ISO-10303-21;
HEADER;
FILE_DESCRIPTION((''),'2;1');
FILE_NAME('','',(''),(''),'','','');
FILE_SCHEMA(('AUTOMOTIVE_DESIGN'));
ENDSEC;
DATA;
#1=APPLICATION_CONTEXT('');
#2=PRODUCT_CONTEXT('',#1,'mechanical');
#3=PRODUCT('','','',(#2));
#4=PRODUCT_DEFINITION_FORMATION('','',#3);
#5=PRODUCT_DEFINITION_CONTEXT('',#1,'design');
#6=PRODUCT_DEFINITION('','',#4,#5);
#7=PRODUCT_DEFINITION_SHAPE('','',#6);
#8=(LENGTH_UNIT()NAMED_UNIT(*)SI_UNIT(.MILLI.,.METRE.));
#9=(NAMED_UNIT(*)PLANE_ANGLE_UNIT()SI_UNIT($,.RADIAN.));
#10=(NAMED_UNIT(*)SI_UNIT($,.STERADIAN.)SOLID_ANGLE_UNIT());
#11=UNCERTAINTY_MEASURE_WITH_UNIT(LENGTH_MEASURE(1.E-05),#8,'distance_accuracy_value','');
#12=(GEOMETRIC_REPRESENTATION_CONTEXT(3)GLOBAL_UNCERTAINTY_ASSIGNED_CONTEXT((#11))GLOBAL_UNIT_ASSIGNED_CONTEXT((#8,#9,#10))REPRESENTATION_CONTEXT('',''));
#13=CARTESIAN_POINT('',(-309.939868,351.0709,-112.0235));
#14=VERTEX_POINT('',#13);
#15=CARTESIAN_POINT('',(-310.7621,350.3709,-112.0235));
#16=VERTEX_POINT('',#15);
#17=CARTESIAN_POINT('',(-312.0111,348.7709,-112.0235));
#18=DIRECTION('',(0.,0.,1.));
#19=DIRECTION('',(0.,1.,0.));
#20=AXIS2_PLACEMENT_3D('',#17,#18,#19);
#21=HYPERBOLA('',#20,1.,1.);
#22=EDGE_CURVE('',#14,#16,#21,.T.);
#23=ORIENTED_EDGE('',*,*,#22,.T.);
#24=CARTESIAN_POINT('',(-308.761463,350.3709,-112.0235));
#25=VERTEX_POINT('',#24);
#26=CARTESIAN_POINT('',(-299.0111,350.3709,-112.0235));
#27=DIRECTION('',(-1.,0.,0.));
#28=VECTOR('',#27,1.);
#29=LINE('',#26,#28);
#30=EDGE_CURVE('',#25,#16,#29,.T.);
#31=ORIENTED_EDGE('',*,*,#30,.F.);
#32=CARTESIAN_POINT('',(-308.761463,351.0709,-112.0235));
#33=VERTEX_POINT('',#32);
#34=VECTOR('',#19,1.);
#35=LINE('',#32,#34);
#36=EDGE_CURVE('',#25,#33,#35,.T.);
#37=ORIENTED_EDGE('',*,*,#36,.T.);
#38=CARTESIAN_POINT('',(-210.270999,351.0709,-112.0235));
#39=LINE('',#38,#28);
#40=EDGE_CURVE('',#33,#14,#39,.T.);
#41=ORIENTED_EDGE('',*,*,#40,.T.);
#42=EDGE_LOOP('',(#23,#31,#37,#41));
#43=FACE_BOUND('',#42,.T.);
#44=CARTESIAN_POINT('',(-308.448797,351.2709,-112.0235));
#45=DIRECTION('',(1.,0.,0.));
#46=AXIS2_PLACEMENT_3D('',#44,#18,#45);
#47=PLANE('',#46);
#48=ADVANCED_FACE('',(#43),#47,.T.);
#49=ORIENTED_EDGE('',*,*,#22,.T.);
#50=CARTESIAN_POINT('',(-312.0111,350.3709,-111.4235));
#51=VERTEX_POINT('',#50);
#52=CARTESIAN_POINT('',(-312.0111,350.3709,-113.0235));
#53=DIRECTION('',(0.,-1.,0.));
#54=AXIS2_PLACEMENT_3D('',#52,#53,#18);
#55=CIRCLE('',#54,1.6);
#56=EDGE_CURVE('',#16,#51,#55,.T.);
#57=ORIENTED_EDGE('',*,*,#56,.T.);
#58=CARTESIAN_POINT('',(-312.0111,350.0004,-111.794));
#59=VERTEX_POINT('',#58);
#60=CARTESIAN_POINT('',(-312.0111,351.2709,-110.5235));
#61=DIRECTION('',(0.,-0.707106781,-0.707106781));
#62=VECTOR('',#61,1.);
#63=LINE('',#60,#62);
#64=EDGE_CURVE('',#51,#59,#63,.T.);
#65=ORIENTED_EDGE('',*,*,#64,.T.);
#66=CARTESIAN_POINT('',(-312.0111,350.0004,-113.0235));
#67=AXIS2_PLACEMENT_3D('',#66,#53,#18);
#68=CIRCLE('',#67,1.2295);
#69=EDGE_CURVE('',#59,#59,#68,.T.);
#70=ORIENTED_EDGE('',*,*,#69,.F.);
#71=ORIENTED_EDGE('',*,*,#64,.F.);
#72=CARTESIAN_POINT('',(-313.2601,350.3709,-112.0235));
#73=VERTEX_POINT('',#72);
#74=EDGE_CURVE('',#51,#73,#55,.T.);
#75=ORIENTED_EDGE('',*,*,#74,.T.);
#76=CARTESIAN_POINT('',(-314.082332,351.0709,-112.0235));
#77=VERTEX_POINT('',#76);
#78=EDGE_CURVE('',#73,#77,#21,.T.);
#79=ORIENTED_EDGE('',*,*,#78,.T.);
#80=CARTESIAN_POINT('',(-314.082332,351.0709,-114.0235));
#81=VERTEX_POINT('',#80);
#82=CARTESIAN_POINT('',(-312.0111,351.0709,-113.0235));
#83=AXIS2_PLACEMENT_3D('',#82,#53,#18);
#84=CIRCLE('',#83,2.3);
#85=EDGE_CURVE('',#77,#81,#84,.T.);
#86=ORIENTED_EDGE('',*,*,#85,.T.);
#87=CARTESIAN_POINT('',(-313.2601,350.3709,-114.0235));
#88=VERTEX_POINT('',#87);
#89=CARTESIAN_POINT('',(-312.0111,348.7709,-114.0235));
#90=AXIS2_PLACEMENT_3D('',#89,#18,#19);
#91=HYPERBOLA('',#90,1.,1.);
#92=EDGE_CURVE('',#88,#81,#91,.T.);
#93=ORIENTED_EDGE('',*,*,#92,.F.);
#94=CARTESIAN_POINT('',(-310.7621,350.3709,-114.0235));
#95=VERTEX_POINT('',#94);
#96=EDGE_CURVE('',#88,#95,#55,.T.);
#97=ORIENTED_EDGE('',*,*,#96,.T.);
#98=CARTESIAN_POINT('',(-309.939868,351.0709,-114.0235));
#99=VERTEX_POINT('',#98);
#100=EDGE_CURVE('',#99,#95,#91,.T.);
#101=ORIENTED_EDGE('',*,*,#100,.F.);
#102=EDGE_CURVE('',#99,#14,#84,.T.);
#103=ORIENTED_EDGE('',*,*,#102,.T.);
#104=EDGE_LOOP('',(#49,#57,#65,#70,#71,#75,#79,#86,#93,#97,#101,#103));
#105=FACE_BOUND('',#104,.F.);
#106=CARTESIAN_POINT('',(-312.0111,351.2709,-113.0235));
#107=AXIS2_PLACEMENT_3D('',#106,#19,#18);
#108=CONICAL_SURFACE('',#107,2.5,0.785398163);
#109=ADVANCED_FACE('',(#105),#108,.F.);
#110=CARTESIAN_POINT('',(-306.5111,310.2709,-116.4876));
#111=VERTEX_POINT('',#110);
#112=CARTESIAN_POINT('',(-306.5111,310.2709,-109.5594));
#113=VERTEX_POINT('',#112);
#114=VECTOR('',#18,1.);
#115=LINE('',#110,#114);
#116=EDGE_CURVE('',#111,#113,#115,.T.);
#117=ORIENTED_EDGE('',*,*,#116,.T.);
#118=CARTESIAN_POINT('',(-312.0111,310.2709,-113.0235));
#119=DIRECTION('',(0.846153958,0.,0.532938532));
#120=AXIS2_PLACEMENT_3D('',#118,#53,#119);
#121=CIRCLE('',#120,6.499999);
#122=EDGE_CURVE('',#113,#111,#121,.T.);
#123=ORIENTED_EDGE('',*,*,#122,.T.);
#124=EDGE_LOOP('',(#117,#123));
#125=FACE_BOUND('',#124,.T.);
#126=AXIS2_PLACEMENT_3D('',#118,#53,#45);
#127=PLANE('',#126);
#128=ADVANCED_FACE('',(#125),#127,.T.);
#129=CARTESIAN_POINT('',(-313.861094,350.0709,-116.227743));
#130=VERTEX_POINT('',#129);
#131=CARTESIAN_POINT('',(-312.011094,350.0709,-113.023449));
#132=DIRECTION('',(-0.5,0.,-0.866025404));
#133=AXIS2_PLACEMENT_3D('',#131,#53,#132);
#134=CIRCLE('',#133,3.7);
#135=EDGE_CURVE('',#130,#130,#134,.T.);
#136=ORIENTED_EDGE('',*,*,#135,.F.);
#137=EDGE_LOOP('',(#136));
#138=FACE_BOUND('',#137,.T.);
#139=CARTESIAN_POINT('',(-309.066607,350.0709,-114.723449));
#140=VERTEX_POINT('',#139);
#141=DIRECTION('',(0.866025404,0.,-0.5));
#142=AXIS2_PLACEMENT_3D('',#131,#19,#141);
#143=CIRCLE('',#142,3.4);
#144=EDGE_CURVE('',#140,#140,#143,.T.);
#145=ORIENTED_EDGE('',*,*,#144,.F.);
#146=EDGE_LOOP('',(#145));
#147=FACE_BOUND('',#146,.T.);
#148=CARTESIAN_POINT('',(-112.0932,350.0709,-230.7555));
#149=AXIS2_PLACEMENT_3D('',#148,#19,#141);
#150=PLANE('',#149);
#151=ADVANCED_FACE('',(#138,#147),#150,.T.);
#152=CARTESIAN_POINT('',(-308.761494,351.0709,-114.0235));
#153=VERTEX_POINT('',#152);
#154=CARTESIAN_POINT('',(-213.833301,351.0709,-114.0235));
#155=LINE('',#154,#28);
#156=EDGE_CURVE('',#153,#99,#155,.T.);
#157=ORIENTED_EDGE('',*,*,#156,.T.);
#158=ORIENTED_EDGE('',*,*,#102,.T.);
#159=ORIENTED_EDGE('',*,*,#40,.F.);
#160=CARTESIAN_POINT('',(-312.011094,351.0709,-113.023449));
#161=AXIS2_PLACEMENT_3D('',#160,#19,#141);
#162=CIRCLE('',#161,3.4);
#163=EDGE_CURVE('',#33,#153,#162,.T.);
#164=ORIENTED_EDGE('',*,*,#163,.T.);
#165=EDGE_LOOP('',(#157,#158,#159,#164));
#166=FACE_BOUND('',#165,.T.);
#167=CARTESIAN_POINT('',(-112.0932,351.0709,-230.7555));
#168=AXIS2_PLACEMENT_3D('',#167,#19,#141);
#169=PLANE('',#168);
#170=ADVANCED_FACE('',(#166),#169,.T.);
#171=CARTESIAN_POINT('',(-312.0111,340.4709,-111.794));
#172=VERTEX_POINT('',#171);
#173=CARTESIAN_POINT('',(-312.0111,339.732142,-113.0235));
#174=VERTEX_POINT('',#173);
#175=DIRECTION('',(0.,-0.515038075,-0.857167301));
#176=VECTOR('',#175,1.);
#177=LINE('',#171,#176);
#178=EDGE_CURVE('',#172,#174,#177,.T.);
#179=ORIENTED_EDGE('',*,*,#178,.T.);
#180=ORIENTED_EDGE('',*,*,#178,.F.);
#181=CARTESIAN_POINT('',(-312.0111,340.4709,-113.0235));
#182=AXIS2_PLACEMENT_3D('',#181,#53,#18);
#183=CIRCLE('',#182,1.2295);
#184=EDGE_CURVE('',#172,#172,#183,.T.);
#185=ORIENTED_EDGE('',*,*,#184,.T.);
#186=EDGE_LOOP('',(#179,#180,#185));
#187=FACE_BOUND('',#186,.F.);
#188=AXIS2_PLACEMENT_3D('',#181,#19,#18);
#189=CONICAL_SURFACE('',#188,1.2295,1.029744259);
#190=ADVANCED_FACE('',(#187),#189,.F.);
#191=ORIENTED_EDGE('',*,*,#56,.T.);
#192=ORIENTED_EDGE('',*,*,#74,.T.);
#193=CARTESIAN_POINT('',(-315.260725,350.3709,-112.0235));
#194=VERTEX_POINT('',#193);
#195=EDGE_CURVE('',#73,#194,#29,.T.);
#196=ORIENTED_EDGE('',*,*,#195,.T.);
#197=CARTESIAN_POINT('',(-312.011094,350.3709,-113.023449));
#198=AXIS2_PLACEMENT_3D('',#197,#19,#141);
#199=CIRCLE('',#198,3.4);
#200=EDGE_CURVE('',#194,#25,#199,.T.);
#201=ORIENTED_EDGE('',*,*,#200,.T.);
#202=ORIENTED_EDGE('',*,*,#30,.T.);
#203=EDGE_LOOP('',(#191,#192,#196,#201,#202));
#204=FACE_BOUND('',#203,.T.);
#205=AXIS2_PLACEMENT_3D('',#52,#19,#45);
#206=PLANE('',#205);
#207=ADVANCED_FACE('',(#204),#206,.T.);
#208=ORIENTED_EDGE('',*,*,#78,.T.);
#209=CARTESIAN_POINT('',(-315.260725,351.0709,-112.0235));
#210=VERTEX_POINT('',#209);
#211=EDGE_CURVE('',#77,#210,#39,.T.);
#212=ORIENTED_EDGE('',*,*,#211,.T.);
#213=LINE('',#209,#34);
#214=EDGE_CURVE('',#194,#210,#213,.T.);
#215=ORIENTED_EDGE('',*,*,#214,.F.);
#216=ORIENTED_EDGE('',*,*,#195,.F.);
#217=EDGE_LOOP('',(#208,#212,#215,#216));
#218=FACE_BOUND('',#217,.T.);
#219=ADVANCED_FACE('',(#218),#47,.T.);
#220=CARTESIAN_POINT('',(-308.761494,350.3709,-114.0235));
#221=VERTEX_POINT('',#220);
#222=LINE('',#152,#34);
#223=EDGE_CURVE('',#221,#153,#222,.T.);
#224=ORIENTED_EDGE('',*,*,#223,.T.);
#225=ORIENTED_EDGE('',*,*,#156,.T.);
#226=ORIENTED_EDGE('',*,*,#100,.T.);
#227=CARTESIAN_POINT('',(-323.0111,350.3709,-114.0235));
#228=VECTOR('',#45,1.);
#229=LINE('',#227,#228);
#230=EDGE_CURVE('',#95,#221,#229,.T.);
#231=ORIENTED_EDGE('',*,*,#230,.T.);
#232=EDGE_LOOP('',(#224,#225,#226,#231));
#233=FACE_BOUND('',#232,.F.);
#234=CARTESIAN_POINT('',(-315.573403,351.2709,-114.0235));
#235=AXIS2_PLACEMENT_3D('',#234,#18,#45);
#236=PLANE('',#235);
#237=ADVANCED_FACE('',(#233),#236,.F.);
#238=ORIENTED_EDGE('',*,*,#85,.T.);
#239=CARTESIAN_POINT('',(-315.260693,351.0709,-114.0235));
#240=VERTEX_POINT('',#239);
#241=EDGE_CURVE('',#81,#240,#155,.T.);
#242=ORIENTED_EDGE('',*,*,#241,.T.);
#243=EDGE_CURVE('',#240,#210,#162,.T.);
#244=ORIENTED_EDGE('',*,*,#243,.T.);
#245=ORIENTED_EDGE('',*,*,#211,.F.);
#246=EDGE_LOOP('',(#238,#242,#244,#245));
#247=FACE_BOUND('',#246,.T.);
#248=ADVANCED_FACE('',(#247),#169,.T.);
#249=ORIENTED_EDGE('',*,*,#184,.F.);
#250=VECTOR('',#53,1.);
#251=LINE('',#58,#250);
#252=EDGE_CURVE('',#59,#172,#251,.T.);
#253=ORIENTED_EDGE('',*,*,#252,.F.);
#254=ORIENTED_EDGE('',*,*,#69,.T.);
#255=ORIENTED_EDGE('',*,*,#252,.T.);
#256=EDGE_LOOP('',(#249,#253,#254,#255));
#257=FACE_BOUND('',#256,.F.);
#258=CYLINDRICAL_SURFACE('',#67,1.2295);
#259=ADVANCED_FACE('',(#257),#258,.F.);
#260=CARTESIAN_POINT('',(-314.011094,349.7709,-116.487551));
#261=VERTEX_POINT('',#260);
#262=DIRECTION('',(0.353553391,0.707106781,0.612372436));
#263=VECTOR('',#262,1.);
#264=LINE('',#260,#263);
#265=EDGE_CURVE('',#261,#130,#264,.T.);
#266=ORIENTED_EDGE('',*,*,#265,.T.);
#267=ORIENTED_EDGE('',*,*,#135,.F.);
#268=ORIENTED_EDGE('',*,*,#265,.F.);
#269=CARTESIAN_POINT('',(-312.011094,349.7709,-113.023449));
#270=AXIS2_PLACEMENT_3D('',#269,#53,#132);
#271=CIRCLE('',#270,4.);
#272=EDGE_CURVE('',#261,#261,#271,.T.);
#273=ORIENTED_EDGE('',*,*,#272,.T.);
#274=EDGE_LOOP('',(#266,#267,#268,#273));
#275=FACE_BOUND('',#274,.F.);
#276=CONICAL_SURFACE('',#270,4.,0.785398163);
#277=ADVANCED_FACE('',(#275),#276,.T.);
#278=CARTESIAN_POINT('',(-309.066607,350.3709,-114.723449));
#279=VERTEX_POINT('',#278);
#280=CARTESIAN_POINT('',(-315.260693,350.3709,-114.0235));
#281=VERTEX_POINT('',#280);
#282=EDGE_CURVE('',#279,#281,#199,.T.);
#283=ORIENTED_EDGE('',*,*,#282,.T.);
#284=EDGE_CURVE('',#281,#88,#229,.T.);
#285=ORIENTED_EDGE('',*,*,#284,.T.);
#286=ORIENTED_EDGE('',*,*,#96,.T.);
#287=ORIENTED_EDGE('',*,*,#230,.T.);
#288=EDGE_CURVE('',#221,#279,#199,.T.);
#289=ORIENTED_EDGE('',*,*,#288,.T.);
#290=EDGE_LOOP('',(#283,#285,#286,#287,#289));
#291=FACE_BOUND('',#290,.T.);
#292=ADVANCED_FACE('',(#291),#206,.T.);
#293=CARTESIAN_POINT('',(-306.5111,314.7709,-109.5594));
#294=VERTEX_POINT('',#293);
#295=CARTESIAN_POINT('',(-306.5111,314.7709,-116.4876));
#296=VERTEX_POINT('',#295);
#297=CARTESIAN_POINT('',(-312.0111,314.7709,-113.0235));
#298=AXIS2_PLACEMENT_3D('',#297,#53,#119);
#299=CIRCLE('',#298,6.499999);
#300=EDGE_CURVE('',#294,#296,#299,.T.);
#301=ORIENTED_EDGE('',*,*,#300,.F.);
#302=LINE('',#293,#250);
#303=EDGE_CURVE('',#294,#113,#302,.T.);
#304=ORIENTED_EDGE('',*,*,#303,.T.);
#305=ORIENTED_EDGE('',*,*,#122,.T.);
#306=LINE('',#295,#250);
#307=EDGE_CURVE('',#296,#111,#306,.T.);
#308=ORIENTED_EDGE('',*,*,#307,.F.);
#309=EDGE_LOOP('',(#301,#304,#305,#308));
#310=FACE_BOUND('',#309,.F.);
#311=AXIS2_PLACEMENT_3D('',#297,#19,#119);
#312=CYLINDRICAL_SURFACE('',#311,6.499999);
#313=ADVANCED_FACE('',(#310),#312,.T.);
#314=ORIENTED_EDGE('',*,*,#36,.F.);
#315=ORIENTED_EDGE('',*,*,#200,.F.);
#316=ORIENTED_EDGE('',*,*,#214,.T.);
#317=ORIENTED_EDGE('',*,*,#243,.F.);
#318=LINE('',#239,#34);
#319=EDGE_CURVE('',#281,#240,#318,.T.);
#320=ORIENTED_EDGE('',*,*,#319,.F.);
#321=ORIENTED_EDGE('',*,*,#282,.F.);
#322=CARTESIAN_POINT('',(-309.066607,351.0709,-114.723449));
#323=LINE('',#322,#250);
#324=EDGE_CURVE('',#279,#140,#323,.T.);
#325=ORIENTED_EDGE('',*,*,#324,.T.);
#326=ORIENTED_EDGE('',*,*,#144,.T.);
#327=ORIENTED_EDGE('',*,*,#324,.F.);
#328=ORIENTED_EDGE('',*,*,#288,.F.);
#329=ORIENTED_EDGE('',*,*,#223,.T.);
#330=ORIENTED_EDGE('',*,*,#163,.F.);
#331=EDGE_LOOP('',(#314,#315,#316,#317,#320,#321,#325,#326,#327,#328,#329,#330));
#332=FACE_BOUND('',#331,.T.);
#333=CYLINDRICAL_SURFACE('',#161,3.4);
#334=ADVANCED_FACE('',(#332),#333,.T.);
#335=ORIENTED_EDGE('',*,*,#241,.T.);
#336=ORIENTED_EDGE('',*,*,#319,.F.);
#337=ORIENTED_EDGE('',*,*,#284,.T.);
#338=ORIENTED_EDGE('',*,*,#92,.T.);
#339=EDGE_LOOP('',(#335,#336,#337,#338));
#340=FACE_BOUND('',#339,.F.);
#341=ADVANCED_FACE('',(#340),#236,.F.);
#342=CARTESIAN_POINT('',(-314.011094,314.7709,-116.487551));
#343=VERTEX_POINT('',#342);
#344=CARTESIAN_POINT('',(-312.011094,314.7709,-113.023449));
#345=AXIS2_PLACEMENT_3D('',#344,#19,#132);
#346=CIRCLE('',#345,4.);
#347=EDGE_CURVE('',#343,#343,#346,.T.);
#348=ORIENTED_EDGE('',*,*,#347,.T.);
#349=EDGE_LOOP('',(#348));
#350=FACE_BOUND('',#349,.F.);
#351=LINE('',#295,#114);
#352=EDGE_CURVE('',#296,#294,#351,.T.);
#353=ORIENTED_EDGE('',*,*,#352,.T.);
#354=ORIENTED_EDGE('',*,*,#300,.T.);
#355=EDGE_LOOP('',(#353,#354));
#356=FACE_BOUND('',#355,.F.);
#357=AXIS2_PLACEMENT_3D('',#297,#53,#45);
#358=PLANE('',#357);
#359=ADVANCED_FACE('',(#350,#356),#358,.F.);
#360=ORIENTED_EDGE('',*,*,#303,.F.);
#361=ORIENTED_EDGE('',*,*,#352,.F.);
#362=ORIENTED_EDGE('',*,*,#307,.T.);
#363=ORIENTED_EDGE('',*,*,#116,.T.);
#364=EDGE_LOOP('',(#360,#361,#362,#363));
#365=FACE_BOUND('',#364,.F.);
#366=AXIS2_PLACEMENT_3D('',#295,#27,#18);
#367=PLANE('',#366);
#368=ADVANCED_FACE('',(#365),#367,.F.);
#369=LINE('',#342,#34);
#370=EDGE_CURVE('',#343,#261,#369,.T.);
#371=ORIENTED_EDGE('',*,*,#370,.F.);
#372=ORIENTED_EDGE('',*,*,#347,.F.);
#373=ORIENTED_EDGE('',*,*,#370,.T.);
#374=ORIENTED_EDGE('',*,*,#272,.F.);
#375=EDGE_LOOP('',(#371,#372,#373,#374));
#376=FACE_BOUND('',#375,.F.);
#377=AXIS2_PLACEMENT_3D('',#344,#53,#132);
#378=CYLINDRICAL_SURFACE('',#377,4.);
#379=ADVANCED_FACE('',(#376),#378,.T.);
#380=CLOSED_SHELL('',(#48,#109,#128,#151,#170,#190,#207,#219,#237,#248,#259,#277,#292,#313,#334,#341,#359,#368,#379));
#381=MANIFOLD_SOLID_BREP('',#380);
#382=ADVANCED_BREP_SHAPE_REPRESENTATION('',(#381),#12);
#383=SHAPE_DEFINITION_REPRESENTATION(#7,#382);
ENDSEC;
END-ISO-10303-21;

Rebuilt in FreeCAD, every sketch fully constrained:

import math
import FreeCAD as App
import Part
import Sketcher
from FreeCAD import Vector
Q = App.Units.Quantity


def edges_at(feature, points):
    """Names of the edges that pass closest to the given points."""
    edges = feature.Shape.Edges
    near = lambda p: min(range(len(edges)), key=lambda i: edges[i].distToShape(Part.Vertex(*p))[0])
    return sorted({f"Edge{near(p) + 1}" for p in points})


def add_polygon(sketch, points):
    """Adds a closed chain of lines whose ends are joined by coincident constraints."""
    first, n = sketch.GeometryCount, len(points)
    for a, b in zip(points, points[1:] + points[:1]):
        sketch.addGeometry(Part.LineSegment(App.Vector(*a, 0), App.Vector(*b, 0)), False)
    for i in range(n):
        sketch.addConstraint(Sketcher.Constraint("Coincident", first + i, 2, first + (i + 1) % n, 1))

doc = App.newDocument("Part")
body = doc.addObject("PartDesign::Body", "Body")

# Sketch on XZ plane
sketch1 = doc.addObject("Sketcher::SketchObject", "Sketch")
body.addObject(sketch1)
sketch1.AttachmentSupport = (doc.XZ_Plane, [""])
sketch1.MapMode = "FlatFace"
sketch1.AttachmentOffset = App.Placement(Vector(0, 0, -314.7709), App.Rotation())
sketch1.addGeometry(Part.Circle(Vector(-312.011094, -113.023449, 0), Vector(0, 0, 1), 4), False)
sketch1.addConstraint([
    Sketcher.Constraint("Diameter", 0, Q("8 mm")),
    Sketcher.Constraint("DistanceX", 0, 3, -1, 1, Q("312.011 mm")),
    Sketcher.Constraint("DistanceY", 0, 3, -1, 1, Q("113.0234 mm")),
])
pad1 = doc.addObject("PartDesign::Pad", "Pad")
body.addObject(pad1)
pad1.Profile = sketch1
pad1.Length = 36.5
pad1.Reversed = True

# Sketch on XZ plane
sketch2 = doc.addObject("Sketcher::SketchObject", "Sketch001")
body.addObject(sketch2)
sketch2.AttachmentSupport = (doc.XZ_Plane, [""])
sketch2.MapMode = "FlatFace"
sketch2.AttachmentOffset = App.Placement(Vector(0, 0, -314.7709), App.Rotation())
sketch2.addGeometry([
    Part.LineSegment(Vector(-306.5111, -116.4876, 0), Vector(-306.5111, -109.5594, 0)),
    Part.ArcOfCircle(Part.Circle(Vector(-312.0111, -113.0235, 0), Vector(0, 0, 1), 6.499999), math.radians(32.204215), math.radians(327.795785)),
], False)
sketch2.addConstraint([
    Sketcher.Constraint("Coincident", 0, 1, 1, 2),
    Sketcher.Constraint("Coincident", 1, 1, 0, 2),
    Sketcher.Constraint("Vertical", 0),
    Sketcher.Constraint("Radius", 1, Q("6.5 mm")),
    Sketcher.Constraint("DistanceX", 1, 3, 0, 1, Q("5.5 mm")),
    Sketcher.Constraint("DistanceX", 1, 3, -1, 1, Q("312.011 mm")),
    Sketcher.Constraint("DistanceY", 1, 3, -1, 1, Q("113.0235 mm")),
])
pad2 = doc.addObject("PartDesign::Pad", "Pad001")
body.addObject(pad2)
pad2.Profile = sketch2
pad2.Length = 4.5

# Sketch on XZ plane
sketch3 = doc.addObject("Sketcher::SketchObject", "Sketch002")
body.addObject(sketch3)
sketch3.AttachmentSupport = (doc.XZ_Plane, [""])
sketch3.MapMode = "FlatFace"
sketch3.AttachmentOffset = App.Placement(Vector(0, 0, -351.2709), App.Rotation())
add_polygon(sketch3, [(-302.0111, -114.0235), (-309.0111, -126.0235), (-323.0111, -114.0235)])  # lines 0-2
add_polygon(sketch3, [(-299.0111, -112.0235), (-323.0111, -112.0235), (-304.0111, -98.0235)])  # lines 3-5
sketch3.addConstraint([
    Sketcher.Constraint("Horizontal", 2),
    Sketcher.Constraint("Horizontal", 3),
    Sketcher.Constraint("Vertical", 1, 2, 3, 2),
    Sketcher.Constraint("DistanceX", 2, 1, 2, 2, Q("21 mm")),
    Sketcher.Constraint("DistanceX", 3, 2, 3, 1, Q("24 mm")),
    Sketcher.Constraint("DistanceX", 1, 2, 0, 2, Q("14 mm")),
    Sketcher.Constraint("DistanceY", 0, 2, 1, 2, Q("12 mm")),
    Sketcher.Constraint("DistanceY", 1, 2, 3, 2, Q("2 mm")),
    Sketcher.Constraint("DistanceX", 4, 2, 2, 2, Q("2 mm")),
    Sketcher.Constraint("DistanceY", 2, 2, 4, 2, Q("16 mm")),
    Sketcher.Constraint("DistanceX", 0, 2, -1, 1, Q("309.011 mm")),
    Sketcher.Constraint("DistanceY", 0, 2, -1, 1, Q("126.0235 mm")),
])
pocket1 = doc.addObject("PartDesign::Pocket", "Pocket")
body.addObject(pocket1)
pocket1.Profile = sketch3
pocket1.Length = 0.9
pocket1.Reversed = True

# Sketch on XZ plane
sketch4 = doc.addObject("Sketcher::SketchObject", "Sketch003")
body.addObject(sketch4)
sketch4.AttachmentSupport = (doc.XZ_Plane, [""])
sketch4.MapMode = "FlatFace"
sketch4.AttachmentOffset = App.Placement(Vector(0, 0, -351.2709), App.Rotation())
sketch4.addGeometry(Part.Circle(Vector(-312.0111, -113.0235, 0), Vector(0, 0, 1), 1.2295), False)
sketch4.addConstraint([
    Sketcher.Constraint("Diameter", 0, Q("2.459 mm")),
    Sketcher.Constraint("DistanceX", 0, 3, -1, 1, Q("312.011 mm")),
    Sketcher.Constraint("DistanceY", 0, 3, -1, 1, Q("113.0235 mm")),
])
doc.recompute()
hole = doc.addObject("PartDesign::Hole", "Hole")
body.addObject(hole)
hole.Profile = sketch4
hole.ThreadType = "None"
hole.Diameter = 2.459
hole.DepthType = "Dimension"
hole.Depth = 10.8
hole.DrillPoint = "Angled"
hole.DrillPointAngle = 118
hole.HoleCutType = "Countersink"
hole.HoleCutDiameter = 5
hole.HoleCutCountersinkAngle = 90
hole.Reversed = True

# Sketch on XZ plane
sketch5 = doc.addObject("Sketcher::SketchObject", "Sketch004")
body.addObject(sketch5)
sketch5.AttachmentSupport = (doc.XZ_Plane, [""])
sketch5.MapMode = "FlatFace"
sketch5.AttachmentOffset = App.Placement(Vector(0, 0, -351.2709), App.Rotation())
sketch5.addGeometry(Part.Circle(Vector(-312.011094, -113.023449, 0), Vector(0, 0, 1), 10.2956), False)
sketch5.addConstraint([
    Sketcher.Constraint("Diameter", 0, Q("20.5912 mm")),
    Sketcher.Constraint("DistanceX", 0, 3, -1, 1, Q("312.011 mm")),
    Sketcher.Constraint("DistanceY", 0, 3, -1, 1, Q("113.0234 mm")),
])
pocket2 = doc.addObject("PartDesign::Pocket", "Pocket001")
body.addObject(pocket2)
pocket2.Profile = sketch5
pocket2.Length = 0.2
pocket2.Reversed = True

# Sketch on XZ plane
sketch6 = doc.addObject("Sketcher::SketchObject", "Sketch005")
body.addObject(sketch6)
sketch6.AttachmentSupport = (doc.XZ_Plane, [""])
sketch6.MapMode = "FlatFace"
sketch6.AttachmentOffset = App.Placement(Vector(0, 0, -351.0709), App.Rotation())
sketch6.addGeometry([
    Part.Circle(Vector(-312.011094, -113.023449, 0), Vector(0, 0, 1), 5.5146),
    Part.Circle(Vector(-312.011094, -113.023449, 0), Vector(0, 0, 1), 3.4),
], False)
sketch6.addConstraint([
    Sketcher.Constraint("Coincident", 1, 3, 0, 3),
    Sketcher.Constraint("Diameter", 1, Q("6.8 mm")),
    Sketcher.Constraint("Diameter", 0, Q("11.0292 mm")),
    Sketcher.Constraint("DistanceX", 0, 3, -1, 1, Q("312.011 mm")),
    Sketcher.Constraint("DistanceY", 0, 3, -1, 1, Q("113.0234 mm")),
])
pocket3 = doc.addObject("PartDesign::Pocket", "Pocket002")
body.addObject(pocket3)
pocket3.Profile = sketch6
pocket3.Length = 1
pocket3.Reversed = True
doc.recompute()

chamfer = doc.addObject("PartDesign::Chamfer", "Chamfer")
body.addObject(chamfer)
chamfer.Base = (pocket3, edges_at(pocket3, [(-310.011, 350.071, -109.559)]))
chamfer.Size = 0.3

doc.recompute()
